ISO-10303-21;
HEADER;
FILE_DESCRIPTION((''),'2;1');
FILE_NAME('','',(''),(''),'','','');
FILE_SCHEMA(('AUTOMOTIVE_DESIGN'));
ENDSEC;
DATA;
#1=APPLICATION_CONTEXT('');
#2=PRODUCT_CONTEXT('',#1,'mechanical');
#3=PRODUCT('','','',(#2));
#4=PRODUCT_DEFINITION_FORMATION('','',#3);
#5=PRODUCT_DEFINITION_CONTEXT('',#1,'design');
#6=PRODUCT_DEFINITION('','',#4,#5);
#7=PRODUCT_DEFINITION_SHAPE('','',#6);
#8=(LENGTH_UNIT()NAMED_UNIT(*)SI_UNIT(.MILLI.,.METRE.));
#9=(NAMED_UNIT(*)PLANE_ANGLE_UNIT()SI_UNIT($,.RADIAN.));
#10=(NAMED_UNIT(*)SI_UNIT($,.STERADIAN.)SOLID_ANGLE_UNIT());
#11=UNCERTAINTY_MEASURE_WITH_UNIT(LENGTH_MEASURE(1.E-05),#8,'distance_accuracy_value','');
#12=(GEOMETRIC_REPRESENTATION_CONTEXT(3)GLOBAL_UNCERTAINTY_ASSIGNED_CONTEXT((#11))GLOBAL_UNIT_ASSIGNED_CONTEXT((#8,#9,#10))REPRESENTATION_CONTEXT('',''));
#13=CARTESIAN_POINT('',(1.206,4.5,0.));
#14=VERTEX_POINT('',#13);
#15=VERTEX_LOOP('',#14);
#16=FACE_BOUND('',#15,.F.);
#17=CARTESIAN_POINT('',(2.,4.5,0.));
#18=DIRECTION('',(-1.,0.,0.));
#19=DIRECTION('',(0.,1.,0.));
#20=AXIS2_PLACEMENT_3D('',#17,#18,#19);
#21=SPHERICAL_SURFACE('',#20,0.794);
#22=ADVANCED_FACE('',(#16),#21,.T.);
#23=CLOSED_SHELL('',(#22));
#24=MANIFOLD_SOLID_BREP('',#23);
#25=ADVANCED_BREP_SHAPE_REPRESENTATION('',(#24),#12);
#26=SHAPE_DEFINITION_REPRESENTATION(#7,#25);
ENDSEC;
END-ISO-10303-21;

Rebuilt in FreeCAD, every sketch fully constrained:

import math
import FreeCAD as App
import Part
import Sketcher

V = App.Vector

doc = App.newDocument("Part")
body = doc.addObject("PartDesign::Body", "Body")

# Sketch on XY plane
sketch1 = body.newObject("Sketcher::SketchObject", "Sketch")
sketch1.AttachmentSupport = (doc.getObject("XY_Plane"), [""])
sketch1.MapMode = "FlatFace"
sketch1.addGeometry([
    Part.LineSegment(V(1.2, 4.5, 0), V(2.8, 4.5, 0)),
    Part.ArcOfCircle(Part.Circle(V(2, 4.5, 0), V(0, 0, 1), 0.8), math.radians(0), math.radians(180)),
], False)
sketch1.addGeometry(Part.LineSegment(V(1.2, 4.5, 0), V(2.8, 4.5, 0)), True)  # axis
sketch1.addConstraint([
    Sketcher.Constraint("Coincident", 0, 1, 1, 2),
    Sketcher.Constraint("Coincident", 1, 1, 0, 2),
    Sketcher.Constraint("Horizontal", 0),
    Sketcher.Constraint("Horizontal", 2),
    Sketcher.Constraint("Coincident", 2, 1, 0, 1),
    Sketcher.Constraint("Horizontal", 1, 3, 0, 1),
    Sketcher.Constraint("Equal", 0, 2),
    Sketcher.Constraint("DistanceX", -1, 1, 1, 3, 2.0),
    Sketcher.Constraint("Radius", 1, 0.794),
    Sketcher.Constraint("DistanceY", -1, 1, 1, 3, 4.5),
])
revolution = body.newObject("PartDesign::Revolution", "Revolution")
revolution.Profile = sketch1
revolution.ReferenceAxis = (sketch1, ["Axis0"])
revolution.Angle = 360

doc.recompute()
